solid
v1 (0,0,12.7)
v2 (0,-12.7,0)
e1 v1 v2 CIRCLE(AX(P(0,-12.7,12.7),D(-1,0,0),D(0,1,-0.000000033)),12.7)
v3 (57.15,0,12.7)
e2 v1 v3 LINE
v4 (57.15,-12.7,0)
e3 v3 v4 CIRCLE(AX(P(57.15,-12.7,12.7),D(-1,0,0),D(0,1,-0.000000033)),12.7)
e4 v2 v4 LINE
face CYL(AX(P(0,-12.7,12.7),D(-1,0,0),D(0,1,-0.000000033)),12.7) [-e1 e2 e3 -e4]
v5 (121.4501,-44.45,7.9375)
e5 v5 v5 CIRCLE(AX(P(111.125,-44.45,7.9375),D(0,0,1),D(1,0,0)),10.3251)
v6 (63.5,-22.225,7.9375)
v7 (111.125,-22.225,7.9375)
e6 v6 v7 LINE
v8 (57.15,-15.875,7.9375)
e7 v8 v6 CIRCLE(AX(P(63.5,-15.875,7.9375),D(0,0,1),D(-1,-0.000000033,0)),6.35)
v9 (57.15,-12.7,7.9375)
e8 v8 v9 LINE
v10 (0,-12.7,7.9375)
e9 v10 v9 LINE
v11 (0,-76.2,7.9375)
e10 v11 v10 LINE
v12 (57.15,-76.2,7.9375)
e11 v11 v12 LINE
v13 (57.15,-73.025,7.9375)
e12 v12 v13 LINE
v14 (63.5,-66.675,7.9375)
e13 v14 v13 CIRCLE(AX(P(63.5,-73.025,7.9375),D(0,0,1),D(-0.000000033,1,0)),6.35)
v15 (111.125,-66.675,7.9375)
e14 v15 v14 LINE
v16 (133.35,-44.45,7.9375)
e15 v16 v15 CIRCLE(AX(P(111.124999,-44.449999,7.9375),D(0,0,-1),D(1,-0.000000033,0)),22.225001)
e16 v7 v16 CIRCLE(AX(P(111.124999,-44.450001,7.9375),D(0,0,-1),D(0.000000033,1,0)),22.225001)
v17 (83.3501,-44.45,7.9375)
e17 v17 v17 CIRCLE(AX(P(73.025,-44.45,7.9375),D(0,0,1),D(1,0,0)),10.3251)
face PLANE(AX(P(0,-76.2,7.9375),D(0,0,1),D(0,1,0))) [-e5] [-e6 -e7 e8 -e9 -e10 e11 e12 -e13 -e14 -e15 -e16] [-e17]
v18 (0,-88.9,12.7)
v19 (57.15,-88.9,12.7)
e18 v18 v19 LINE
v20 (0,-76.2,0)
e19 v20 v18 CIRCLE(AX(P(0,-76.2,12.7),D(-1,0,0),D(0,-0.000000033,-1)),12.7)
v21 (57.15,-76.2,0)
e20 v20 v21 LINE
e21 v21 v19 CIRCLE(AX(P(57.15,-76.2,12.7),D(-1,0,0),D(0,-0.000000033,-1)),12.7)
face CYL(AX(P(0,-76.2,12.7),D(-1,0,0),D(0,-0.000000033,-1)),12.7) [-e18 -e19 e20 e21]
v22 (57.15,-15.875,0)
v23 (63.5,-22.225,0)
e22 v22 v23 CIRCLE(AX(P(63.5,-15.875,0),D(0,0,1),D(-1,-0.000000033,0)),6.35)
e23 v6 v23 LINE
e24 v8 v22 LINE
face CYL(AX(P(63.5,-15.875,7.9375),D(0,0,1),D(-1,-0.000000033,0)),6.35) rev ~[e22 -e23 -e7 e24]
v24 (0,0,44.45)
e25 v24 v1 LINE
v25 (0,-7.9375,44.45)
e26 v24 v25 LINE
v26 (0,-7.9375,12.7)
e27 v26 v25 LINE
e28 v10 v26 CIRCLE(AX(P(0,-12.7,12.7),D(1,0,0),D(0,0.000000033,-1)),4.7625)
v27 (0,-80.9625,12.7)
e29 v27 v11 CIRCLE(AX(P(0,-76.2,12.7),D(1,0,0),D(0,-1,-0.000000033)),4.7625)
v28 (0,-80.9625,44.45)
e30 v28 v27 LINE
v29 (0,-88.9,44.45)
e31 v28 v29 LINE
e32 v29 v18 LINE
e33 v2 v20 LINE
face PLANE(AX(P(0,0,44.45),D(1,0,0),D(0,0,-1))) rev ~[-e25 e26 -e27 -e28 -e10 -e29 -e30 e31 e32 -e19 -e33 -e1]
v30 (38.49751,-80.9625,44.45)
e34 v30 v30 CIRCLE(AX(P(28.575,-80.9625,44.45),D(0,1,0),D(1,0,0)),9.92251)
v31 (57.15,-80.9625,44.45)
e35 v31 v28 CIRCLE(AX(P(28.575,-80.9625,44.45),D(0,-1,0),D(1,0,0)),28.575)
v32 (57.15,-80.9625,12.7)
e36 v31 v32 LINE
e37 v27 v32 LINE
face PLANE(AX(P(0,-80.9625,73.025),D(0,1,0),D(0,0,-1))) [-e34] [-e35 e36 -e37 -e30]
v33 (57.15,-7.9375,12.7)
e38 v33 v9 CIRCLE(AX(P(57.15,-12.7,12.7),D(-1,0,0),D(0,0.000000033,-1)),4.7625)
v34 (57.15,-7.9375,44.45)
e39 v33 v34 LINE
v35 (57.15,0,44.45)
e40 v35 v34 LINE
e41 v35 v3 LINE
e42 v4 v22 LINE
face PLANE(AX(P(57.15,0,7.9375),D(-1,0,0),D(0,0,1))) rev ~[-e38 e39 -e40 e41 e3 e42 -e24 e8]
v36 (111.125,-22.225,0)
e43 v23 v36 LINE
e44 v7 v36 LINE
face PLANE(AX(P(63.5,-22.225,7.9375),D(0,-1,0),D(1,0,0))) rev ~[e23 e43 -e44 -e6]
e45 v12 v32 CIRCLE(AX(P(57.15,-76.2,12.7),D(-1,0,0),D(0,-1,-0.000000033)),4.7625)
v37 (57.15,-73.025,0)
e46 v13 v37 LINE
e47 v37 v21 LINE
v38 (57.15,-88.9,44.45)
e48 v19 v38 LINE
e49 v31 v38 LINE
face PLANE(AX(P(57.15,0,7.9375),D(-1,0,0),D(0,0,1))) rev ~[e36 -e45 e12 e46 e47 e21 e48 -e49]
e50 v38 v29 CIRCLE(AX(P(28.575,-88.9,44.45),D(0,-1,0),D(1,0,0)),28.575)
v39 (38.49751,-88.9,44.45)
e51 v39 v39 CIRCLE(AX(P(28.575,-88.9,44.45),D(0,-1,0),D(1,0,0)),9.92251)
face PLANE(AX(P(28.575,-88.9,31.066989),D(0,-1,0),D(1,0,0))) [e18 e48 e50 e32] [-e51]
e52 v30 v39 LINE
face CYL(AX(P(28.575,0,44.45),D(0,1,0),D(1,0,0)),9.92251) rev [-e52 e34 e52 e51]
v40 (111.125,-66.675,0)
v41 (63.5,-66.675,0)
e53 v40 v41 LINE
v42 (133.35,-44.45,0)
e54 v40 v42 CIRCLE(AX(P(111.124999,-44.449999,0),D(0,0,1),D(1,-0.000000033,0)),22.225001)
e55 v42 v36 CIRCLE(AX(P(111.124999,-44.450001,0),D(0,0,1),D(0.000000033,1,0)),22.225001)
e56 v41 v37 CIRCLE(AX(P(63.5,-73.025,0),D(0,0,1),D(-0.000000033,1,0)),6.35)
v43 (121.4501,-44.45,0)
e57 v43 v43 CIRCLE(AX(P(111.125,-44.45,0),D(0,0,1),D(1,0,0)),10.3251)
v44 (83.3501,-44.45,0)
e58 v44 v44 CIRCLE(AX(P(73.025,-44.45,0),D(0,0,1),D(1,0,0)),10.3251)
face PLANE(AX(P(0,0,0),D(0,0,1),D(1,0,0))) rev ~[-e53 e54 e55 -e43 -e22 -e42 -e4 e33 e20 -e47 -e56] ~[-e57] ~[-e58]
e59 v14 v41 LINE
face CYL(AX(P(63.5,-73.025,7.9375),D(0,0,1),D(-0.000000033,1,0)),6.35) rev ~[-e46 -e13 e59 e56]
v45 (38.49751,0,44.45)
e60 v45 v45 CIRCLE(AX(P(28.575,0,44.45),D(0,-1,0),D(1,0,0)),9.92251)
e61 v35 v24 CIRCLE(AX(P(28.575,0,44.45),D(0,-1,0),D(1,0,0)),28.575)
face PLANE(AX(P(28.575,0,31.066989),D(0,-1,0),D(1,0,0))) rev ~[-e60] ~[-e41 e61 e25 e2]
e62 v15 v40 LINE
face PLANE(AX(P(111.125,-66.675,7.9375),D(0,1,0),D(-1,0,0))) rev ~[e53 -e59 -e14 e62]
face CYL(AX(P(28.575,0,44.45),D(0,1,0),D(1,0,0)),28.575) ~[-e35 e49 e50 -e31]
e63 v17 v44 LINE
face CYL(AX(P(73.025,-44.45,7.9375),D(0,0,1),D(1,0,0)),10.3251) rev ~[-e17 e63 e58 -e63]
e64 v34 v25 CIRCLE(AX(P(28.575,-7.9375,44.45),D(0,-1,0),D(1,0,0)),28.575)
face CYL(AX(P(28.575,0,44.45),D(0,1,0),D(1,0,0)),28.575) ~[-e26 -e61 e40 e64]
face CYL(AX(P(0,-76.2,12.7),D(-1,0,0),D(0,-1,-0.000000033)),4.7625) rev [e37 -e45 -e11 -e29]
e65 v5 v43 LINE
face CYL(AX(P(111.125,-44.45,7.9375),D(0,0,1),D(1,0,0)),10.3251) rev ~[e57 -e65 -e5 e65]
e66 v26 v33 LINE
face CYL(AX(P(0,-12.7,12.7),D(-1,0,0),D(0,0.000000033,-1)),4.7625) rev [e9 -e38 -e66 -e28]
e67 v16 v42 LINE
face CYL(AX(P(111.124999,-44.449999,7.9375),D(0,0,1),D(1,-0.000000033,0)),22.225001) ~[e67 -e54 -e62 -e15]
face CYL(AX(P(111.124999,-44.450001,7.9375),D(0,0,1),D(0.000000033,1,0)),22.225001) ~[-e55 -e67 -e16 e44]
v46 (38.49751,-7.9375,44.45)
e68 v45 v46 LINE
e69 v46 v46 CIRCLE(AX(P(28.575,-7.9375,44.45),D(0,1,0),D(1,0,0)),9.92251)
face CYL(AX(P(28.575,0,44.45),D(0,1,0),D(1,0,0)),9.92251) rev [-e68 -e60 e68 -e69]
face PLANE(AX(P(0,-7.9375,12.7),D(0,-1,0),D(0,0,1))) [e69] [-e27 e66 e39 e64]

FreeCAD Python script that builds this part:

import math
import FreeCAD as App
import Part
import Sketcher
Q = App.Units.Quantity

doc = App.newDocument("Part")
body = doc.addObject("PartDesign::Body", "Body")

# Sketch on XZ plane
sketch1 = body.newObject("Sketcher::SketchObject", "Sketch")
sketch1.AttachmentSupport = (doc.getObject("XZ_Plane"), [""])
sketch1.MapMode = "FlatFace"
sketch1.addGeometry([
    Part.LineSegment(App.Vector(0, 44.45, 0), App.Vector(0, 0, 0)),  # 0
    Part.LineSegment(App.Vector(0, 0, 0), App.Vector(133.35, 0, 0)),  # 1
    Part.LineSegment(App.Vector(133.35, 0, 0), App.Vector(133.35, 7.9375, 0)),  # 2
    Part.LineSegment(App.Vector(133.35, 7.9375, 0), App.Vector(57.15, 7.9375, 0)),  # 3
    Part.LineSegment(App.Vector(57.15, 7.9375, 0), App.Vector(57.15, 44.45, 0)),  # 4
    Part.ArcOfCircle(Part.Circle(App.Vector(28.575, 44.45, 0), App.Vector(0, 0, 1), 28.575), math.radians(0), math.radians(180)),  # 5
    Part.Circle(App.Vector(28.575, 44.45, 0), App.Vector(0, 0, 1), 9.92251),  # 6
], False)
sketch1.addConstraint([
    Sketcher.Constraint("Coincident", 0, 2, 1, 1),
    Sketcher.Constraint("Coincident", 1, 2, 2, 1),
    Sketcher.Constraint("Coincident", 2, 2, 3, 1),
    Sketcher.Constraint("Coincident", 3, 2, 4, 1),
    Sketcher.Constraint("Tangent", 4, 2, 5, 1),
    Sketcher.Constraint("Tangent", 5, 2, 0, 1),
    Sketcher.Constraint("Vertical", 0),
    Sketcher.Constraint("Horizontal", 1),
    Sketcher.Constraint("Vertical", 2),
    Sketcher.Constraint("Horizontal", 3),
    Sketcher.Constraint("Vertical", 4),
    Sketcher.Constraint("Coincident", 0, 2, -1, 1),
    Sketcher.Constraint("Coincident", 6, 3, 5, 3),
    Sketcher.Constraint("DistanceX", 3, 2, 3, 1, Q("3 in")),
    Sketcher.Constraint("Radius", 5, Q("1.125 in")),
    Sketcher.Constraint("Diameter", 6, Q("0.7813 in")),
    Sketcher.Constraint("DistanceY", 0, 2, 0, 1, Q("1.75 in")),
    Sketcher.Constraint("DistanceY", 2, 1, 2, 2, Q("0.3125 in")),
])
pad1 = body.newObject("PartDesign::Pad", "Pad")
pad1.Profile = sketch1
pad1.Length = Q("3.5 in")

# Sketch on XY plane
sketch2 = body.newObject("Sketcher::SketchObject", "Sketch001")
sketch2.AttachmentSupport = (doc.getObject("XY_Plane"), [""])
sketch2.MapMode = "FlatFace"
sketch2.AttachmentOffset = App.Placement(App.Vector(0, 0, 0.3125 * 25.4), App.Rotation())
sketch2.addGeometry([
    Part.Circle(App.Vector(73.025, -44.45, 0), App.Vector(0, 0, 1), 10.3251),  # 0
    Part.Circle(App.Vector(111.125, -44.45, 0), App.Vector(0, 0, 1), 10.3251),  # 1
    Part.LineSegment(App.Vector(133.35, 0, 0), App.Vector(57.15, 0, 0)),  # 2
    Part.LineSegment(App.Vector(57.15, 0, 0), App.Vector(57.15, -15.875, 0)),  # 3
    Part.ArcOfCircle(Part.Circle(App.Vector(63.5, -15.875, 0), App.Vector(0, 0, 1), 6.35), math.radians(-179.999998), math.radians(-90.000002)),  # 4
    Part.LineSegment(App.Vector(63.5, -22.225, 0), App.Vector(111.125, -22.225, 0)),  # 5
    Part.ArcOfCircle(Part.Circle(App.Vector(111.124999, -44.450001, 0), App.Vector(0, 0, 1), 22.225001), math.radians(0.000002), math.radians(89.999998)),  # 6
    Part.LineSegment(App.Vector(133.35, -44.45, 0), App.Vector(133.35, 0, 0)),  # 7
    Part.LineSegment(App.Vector(133.35, -88.9, 0), App.Vector(133.35, -44.45, 0)),  # 8
    Part.ArcOfCircle(Part.Circle(App.Vector(111.124999, -44.449999, 0), App.Vector(0, 0, 1), 22.225001), math.radians(-89.999998), math.radians(-0.000002)),  # 9
    Part.LineSegment(App.Vector(111.125, -66.675, 0), App.Vector(63.5, -66.675, 0)),  # 10
    Part.ArcOfCircle(Part.Circle(App.Vector(63.5, -73.025, 0), App.Vector(0, 0, 1), 6.35), math.radians(90.000002), math.radians(179.999998)),  # 11
    Part.LineSegment(App.Vector(57.15, -73.025, 0), App.Vector(57.15, -88.9, 0)),  # 12
    Part.LineSegment(App.Vector(57.15, -88.9, 0), App.Vector(133.35, -88.9, 0)),  # 13
], False)
sketch2.addConstraint([
    Sketcher.Constraint("Coincident", 2, 2, 3, 1),
    Sketcher.Constraint("Tangent", 3, 2, 4, 1),
    Sketcher.Constraint("Tangent", 4, 2, 5, 1),
    Sketcher.Constraint("Tangent", 5, 2, 6, 2),
    Sketcher.Constraint("Tangent", 6, 1, 7, 1),
    Sketcher.Constraint("Coincident", 7, 2, 2, 1),
    Sketcher.Constraint("Tangent", 8, 2, 9, 2),
    Sketcher.Constraint("Tangent", 9, 1, 10, 1),
    Sketcher.Constraint("Tangent", 10, 2, 11, 1),
    Sketcher.Constraint("Tangent", 11, 2, 12, 1),
    Sketcher.Constraint("Coincident", 12, 2, 13, 1),
    Sketcher.Constraint("Coincident", 13, 2, 8, 1),
    Sketcher.Constraint("Horizontal", 2),
    Sketcher.Constraint("Vertical", 3),
    Sketcher.Constraint("Horizontal", 5),
    Sketcher.Constraint("Vertical", 7),
    Sketcher.Constraint("Vertical", 8),
    Sketcher.Constraint("Horizontal", 10),
    Sketcher.Constraint("Vertical", 12),
    Sketcher.Constraint("Horizontal", 13),
    Sketcher.Constraint("Coincident", 6, 3, 1, 3),
    Sketcher.Constraint("Coincident", 9, 3, 1, 3),
    Sketcher.Constraint("Equal", 0, 1),
    Sketcher.Constraint("Equal", 6, 9),
    Sketcher.Constraint("Equal", 4, 11),
    Sketcher.Constraint("PointOnObject", 2, 2, -1),
    Sketcher.Constraint("Horizontal", 0, 3, 1, 3),
    Sketcher.Constraint("Vertical", 4, 3, 11, 3),
    Sketcher.Constraint("Equal", 7, 8),
    Sketcher.Constraint("DistanceX", 2, 2, 2, 1, Q("3 in")),
    Sketcher.Constraint("Radius", 4, Q("0.25 in")),
    Sketcher.Constraint("Diameter", 0, Q("0.813 in")),
    Sketcher.Constraint("Radius", 6, Q("0.875 in")),
    Sketcher.Constraint("DistanceY", 7, 1, 7, 2, Q("1.75 in")),
    Sketcher.Constraint("DistanceX", -1, 1, 4, 3, Q("2.5 in")),
    Sketcher.Constraint("DistanceX", 0, 3, 1, 3, Q("1.5 in")),
])
pocket1 = body.newObject("PartDesign::Pocket", "Pocket")
pocket1.Profile = sketch2
pocket1.Type = "ThroughAll"

# Sketch on YZ plane
sketch3 = body.newObject("Sketcher::SketchObject", "Sketch002")
sketch3.AttachmentSupport = (doc.getObject("YZ_Plane"), [""])
sketch3.MapMode = "FlatFace"
sketch3.addGeometry([
    Part.LineSegment(App.Vector(-7.9375, 73.025, 0), App.Vector(-80.9625, 73.025, 0)),  # 0
    Part.LineSegment(App.Vector(-80.9625, 73.025, 0), App.Vector(-80.9625, 12.7, 0)),  # 1
    Part.ArcOfCircle(Part.Circle(App.Vector(-76.2, 12.7, 0), App.Vector(0, 0, 1), 4.7625), math.radians(-179.999998), math.radians(-90.000002)),  # 2
    Part.LineSegment(App.Vector(-76.2, 7.9375, 0), App.Vector(-12.7, 7.9375, 0)),  # 3
    Part.ArcOfCircle(Part.Circle(App.Vector(-12.7, 12.7, 0), App.Vector(0, 0, 1), 4.7625), math.radians(-89.999998), math.radians(-0.000002)),  # 4
    Part.LineSegment(App.Vector(-7.9375, 12.7, 0), App.Vector(-7.9375, 73.025, 0)),  # 5
    Part.ArcOfCircle(Part.Circle(App.Vector(-76.2, 12.7, 0), App.Vector(0, 0, 1), 12.7), math.radians(-179.999998), math.radians(-90.000002)),  # 6
    Part.LineSegment(App.Vector(-88.9, 12.7, 0), App.Vector(-88.9, 0, 0)),  # 7
    Part.LineSegment(App.Vector(-88.9, 0, 0), App.Vector(-76.2, 0, 0)),  # 8
    Part.LineSegment(App.Vector(-12.7, 0, 0), App.Vector(0, 0, 0)),  # 9
    Part.LineSegment(App.Vector(0, 0, 0), App.Vector(0, 12.7, 0)),  # 10
    Part.ArcOfCircle(Part.Circle(App.Vector(-12.7, 12.7, 0), App.Vector(0, 0, 1), 12.7), math.radians(-89.999998), math.radians(-0.000002)),  # 11
], False)
sketch3.addConstraint([
    Sketcher.Constraint("Coincident", 0, 2, 1, 1),
    Sketcher.Constraint("Tangent", 1, 2, 2, 1),
    Sketcher.Constraint("Tangent", 2, 2, 3, 1),
    Sketcher.Constraint("Tangent", 3, 2, 4, 1),
    Sketcher.Constraint("Tangent", 4, 2, 5, 1),
    Sketcher.Constraint("Coincident", 5, 2, 0, 1),
    Sketcher.Constraint("Tangent", 6, 1, 7, 1),
    Sketcher.Constraint("Coincident", 7, 2, 8, 1),
    Sketcher.Constraint("Tangent", 8, 2, 6, 2),
    Sketcher.Constraint("Coincident", 9, 2, 10, 1),
    Sketcher.Constraint("Tangent", 10, 2, 11, 2),
    Sketcher.Constraint("Tangent", 11, 1, 9, 1),
    Sketcher.Constraint("Horizontal", 0),
    Sketcher.Constraint("Vertical", 1),
    Sketcher.Constraint("Horizontal", 3),
    Sketcher.Constraint("Vertical", 5),
    Sketcher.Constraint("Vertical", 7),
    Sketcher.Constraint("Horizontal", 8),
    Sketcher.Constraint("Horizontal", 9),
    Sketcher.Constraint("Vertical", 10),
    Sketcher.Constraint("Coincident", 9, 2, -1, 1),
    Sketcher.Constraint("Coincident", 6, 3, 2, 3),
    Sketcher.Constraint("Coincident", 11, 3, 4, 3),
    Sketcher.Constraint("Equal", 2, 4),
    Sketcher.Constraint("Equal", 6, 11),
    Sketcher.Constraint("Radius", 6, Q("0.5 in")),
    Sketcher.Constraint("DistanceX", 3, 1, 3, 2, Q("2.5 in")),
    Sketcher.Constraint("Radius", 2, Q("0.1875 in")),
    Sketcher.Constraint("DistanceY", 1, 2, 1, 1, Q("2.375 in")),
])
pocket2 = body.newObject("PartDesign::Pocket", "Pocket001")
pocket2.Profile = sketch3
pocket2.Type = "ThroughAll"
pocket2.Reversed = True

doc.recompute()
